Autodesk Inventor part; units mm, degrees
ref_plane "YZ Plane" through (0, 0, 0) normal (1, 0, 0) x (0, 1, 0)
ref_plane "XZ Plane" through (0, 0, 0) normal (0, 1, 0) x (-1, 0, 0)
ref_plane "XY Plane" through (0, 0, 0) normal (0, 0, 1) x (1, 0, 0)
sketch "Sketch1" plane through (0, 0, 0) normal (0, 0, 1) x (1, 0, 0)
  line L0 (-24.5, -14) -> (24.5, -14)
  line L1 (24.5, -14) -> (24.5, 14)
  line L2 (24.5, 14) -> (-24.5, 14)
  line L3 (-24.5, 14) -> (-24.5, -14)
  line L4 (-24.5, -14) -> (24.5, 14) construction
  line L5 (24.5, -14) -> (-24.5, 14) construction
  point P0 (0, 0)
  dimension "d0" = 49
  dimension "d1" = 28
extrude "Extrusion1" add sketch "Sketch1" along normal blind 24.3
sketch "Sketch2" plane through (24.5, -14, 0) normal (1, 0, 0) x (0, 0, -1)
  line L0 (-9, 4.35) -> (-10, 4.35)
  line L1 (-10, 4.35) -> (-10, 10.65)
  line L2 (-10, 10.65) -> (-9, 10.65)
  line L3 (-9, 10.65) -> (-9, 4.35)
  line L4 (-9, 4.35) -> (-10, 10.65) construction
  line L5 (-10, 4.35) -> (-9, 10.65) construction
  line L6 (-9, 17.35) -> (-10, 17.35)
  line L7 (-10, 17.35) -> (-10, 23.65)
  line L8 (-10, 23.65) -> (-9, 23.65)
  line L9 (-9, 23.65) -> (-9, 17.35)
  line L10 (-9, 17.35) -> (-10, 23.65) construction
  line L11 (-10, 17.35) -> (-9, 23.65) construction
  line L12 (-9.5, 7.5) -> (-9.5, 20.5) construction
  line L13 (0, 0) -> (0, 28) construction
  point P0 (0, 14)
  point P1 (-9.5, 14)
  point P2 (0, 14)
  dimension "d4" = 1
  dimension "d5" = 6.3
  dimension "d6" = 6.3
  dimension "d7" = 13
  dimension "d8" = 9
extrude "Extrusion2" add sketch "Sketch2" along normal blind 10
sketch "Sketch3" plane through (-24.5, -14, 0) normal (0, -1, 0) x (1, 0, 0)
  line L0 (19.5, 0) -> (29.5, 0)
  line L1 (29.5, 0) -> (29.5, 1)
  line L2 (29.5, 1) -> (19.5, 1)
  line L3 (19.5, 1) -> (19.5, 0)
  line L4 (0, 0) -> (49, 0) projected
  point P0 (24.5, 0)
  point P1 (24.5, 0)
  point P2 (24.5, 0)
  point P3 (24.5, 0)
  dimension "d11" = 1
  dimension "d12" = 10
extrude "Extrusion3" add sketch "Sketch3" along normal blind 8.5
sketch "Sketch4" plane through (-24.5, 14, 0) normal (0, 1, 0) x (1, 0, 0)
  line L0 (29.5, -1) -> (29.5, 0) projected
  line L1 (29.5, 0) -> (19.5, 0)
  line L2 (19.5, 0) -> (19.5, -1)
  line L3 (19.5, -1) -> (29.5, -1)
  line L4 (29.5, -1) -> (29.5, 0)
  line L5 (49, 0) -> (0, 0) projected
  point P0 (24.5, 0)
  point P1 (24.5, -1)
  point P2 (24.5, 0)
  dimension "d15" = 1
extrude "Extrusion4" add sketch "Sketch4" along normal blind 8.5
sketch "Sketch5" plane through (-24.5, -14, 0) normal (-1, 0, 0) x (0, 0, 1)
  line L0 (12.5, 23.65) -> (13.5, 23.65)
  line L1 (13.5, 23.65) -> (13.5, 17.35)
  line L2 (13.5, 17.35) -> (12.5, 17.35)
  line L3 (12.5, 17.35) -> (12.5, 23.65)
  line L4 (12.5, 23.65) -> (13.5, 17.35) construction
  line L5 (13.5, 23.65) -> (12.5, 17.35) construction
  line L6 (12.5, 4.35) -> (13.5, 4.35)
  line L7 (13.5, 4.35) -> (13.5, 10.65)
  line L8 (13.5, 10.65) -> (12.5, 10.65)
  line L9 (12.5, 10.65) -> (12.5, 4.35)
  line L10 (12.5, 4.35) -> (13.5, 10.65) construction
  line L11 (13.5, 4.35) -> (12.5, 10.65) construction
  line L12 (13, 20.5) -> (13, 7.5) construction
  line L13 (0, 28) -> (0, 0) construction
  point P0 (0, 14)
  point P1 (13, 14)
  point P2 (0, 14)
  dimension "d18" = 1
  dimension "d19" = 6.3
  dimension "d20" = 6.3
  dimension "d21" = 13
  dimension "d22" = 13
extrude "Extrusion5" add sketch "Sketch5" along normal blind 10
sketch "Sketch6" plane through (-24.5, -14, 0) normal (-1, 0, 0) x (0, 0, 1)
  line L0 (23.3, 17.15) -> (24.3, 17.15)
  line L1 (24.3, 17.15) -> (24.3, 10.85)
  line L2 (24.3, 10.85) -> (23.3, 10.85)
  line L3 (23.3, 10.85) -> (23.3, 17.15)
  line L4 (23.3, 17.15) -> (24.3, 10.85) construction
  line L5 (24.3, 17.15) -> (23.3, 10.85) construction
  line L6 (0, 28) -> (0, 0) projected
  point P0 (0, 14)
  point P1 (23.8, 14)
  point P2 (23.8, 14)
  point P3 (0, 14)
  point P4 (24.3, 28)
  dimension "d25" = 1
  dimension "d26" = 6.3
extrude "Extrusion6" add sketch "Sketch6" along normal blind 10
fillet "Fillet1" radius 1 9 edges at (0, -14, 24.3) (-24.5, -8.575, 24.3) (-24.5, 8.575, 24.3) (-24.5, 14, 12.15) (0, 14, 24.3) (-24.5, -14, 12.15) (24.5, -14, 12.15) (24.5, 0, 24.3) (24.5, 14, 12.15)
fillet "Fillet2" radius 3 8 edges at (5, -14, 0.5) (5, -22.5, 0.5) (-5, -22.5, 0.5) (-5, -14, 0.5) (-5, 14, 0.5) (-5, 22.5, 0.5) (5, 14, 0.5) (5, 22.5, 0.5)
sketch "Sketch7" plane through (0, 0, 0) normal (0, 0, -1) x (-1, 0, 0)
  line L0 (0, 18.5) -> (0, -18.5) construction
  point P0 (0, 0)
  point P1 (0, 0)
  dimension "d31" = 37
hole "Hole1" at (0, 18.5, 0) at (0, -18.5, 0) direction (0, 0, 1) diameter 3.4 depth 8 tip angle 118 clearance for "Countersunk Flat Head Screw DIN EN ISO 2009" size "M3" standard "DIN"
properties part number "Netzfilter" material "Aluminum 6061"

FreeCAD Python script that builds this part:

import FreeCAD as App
import Part
import Sketcher

V = App.Vector


def edges_at(feature, points):
    """Names of the edges that pass closest to the given points."""
    edges = feature.Shape.Edges
    near = lambda p: min(range(len(edges)), key=lambda i: edges[i].distToShape(Part.Vertex(*p))[0])
    return sorted({f"Edge{near(p) + 1}" for p in points})


def add_polygon(sketch, points):
    """Adds a closed chain of lines whose ends are joined by coincident constraints."""
    first, n = sketch.GeometryCount, len(points)
    for a, b in zip(points, points[1:] + points[:1]):
        sketch.addGeometry(Part.LineSegment(App.Vector(*a, 0), App.Vector(*b, 0)), False)
    for i in range(n):
        sketch.addConstraint(Sketcher.Constraint("Coincident", first + i, 2, first + (i + 1) % n, 1))

doc = App.newDocument("Part")
body = doc.addObject("PartDesign::Body", "Body")

# Sketch on XY plane
sketch1 = body.newObject("Sketcher::SketchObject", "Sketch")
sketch1.AttachmentSupport = (doc.getObject("XY_Plane"), [""])
sketch1.MapMode = "FlatFace"
add_polygon(sketch1, [(-24.5, 14), (-24.5, -14), (24.5, -14), (24.5, 14)])  # lines 0-3
sketch1.addConstraint(Sketcher.Constraint("Vertical", 0))
sketch1.addConstraint(Sketcher.Constraint("Horizontal", 1))
sketch1.addConstraint(Sketcher.Constraint("Vertical", 2))
sketch1.addConstraint(Sketcher.Constraint("Horizontal", 3))
sketch1.addConstraint(Sketcher.Constraint("Symmetric", 0, 2, 2, 2, -1, 1))
sketch1.addConstraint(Sketcher.Constraint("DistanceX", 1, 1, 1, 2, 49.0))
sketch1.addConstraint(Sketcher.Constraint("DistanceY", 0, 2, 0, 1, 28.0))
pad1 = body.newObject("PartDesign::Pad", "Pad")
pad1.Profile = sketch1
pad1.Length = 24.3

# Sketch on YZ plane
sketch2 = body.newObject("Sketcher::SketchObject", "Sketch001")
sketch2.AttachmentSupport = (doc.getObject("YZ_Plane"), [""])
sketch2.MapMode = "FlatFace"
sketch2.AttachmentOffset = App.Placement(V(0, 0, 24.5), App.Rotation())
add_polygon(sketch2, [(-9.65, 10), (-9.65, 9), (-3.35, 9), (-3.35, 10)])  # lines 0-3
add_polygon(sketch2, [(3.35, 10), (3.35, 9), (9.65, 9), (9.65, 10)])  # lines 4-7
sketch2.addConstraint(Sketcher.Constraint("Vertical", 0))
sketch2.addConstraint(Sketcher.Constraint("Horizontal", 1))
sketch2.addConstraint(Sketcher.Constraint("Vertical", 2))
sketch2.addConstraint(Sketcher.Constraint("Horizontal", 3))
sketch2.addConstraint(Sketcher.Constraint("Vertical", 4))
sketch2.addConstraint(Sketcher.Constraint("Horizontal", 5))
sketch2.addConstraint(Sketcher.Constraint("Vertical", 6))
sketch2.addConstraint(Sketcher.Constraint("Horizontal", 7))
sketch2.addConstraint(Sketcher.Constraint("Symmetric", 1, 2, 4, 2, -2))
sketch2.addConstraint(Sketcher.Constraint("Symmetric", 3, 2, 6, 2, -2))
sketch2.addConstraint(Sketcher.Constraint("DistanceY", 0, 2, 0, 1, 1.0))
sketch2.addConstraint(Sketcher.Constraint("DistanceX", 1, 1, 1, 2, 6.3))
sketch2.addConstraint(Sketcher.Constraint("DistanceY", -1, 1, 0, 2, 9.0))
sketch2.addConstraint(Sketcher.Constraint("DistanceX", 0, 2, 4, 2, 13.0))
pad2 = body.newObject("PartDesign::Pad", "Pad001")
pad2.Profile = sketch2
pad2.Length = 10

# Sketch on XZ plane
sketch3 = body.newObject("Sketcher::SketchObject", "Sketch002")
sketch3.AttachmentSupport = (doc.getObject("XZ_Plane"), [""])
sketch3.MapMode = "FlatFace"
sketch3.AttachmentOffset = App.Placement(V(0, 0, 14), App.Rotation())
add_polygon(sketch3, [(-5, 1), (-5, 0), (5, 0), (5, 1)])  # lines 0-3
sketch3.addConstraint(Sketcher.Constraint("Vertical", 0))
sketch3.addConstraint(Sketcher.Constraint("Horizontal", 1))
sketch3.addConstraint(Sketcher.Constraint("Vertical", 2))
sketch3.addConstraint(Sketcher.Constraint("Horizontal", 3))
sketch3.addConstraint(Sketcher.Constraint("Symmetric", 0, 2, 1, 2, -1, 1))
sketch3.addConstraint(Sketcher.Constraint("DistanceX", 1, 1, 1, 2, 10.0))
sketch3.addConstraint(Sketcher.Constraint("DistanceY", 0, 2, 0, 1, 1.0))
pad3 = body.newObject("PartDesign::Pad", "Pad002")
pad3.Profile = sketch3
pad3.Length = 8.5

# Sketch on XZ plane
sketch4 = body.newObject("Sketcher::SketchObject", "Sketch003")
sketch4.AttachmentSupport = (doc.getObject("XZ_Plane"), [""])
sketch4.MapMode = "FlatFace"
sketch4.AttachmentOffset = App.Placement(V(0, 0, -14), App.Rotation())
add_polygon(sketch4, [(-5, 1), (5, 1), (5, 0), (-5, 0)])  # lines 0-3
sketch4.addConstraint(Sketcher.Constraint("Horizontal", 0))
sketch4.addConstraint(Sketcher.Constraint("Vertical", 1))
sketch4.addConstraint(Sketcher.Constraint("Horizontal", 2))
sketch4.addConstraint(Sketcher.Constraint("Vertical", 3))
sketch4.addConstraint(Sketcher.Constraint("Symmetric", 1, 2, 2, 2, -1, 1))
sketch4.addConstraint(Sketcher.Constraint("DistanceY", 1, 2, 1, 1, 1.0))
sketch4.addConstraint(Sketcher.Constraint("DistanceX", 0, 1, 0, 2, 10.0))
pad4 = body.newObject("PartDesign::Pad", "Pad003")
pad4.Profile = sketch4
pad4.Length = 8.5
pad4.Reversed = True

# Sketch on YZ plane
sketch5 = body.newObject("Sketcher::SketchObject", "Sketch004")
sketch5.AttachmentSupport = (doc.getObject("YZ_Plane"), [""])
sketch5.MapMode = "FlatFace"
sketch5.AttachmentOffset = App.Placement(V(0, 0, -24.5), App.Rotation())
add_polygon(sketch5, [(9.65, 13.5), (9.65, 12.5), (3.35, 12.5), (3.35, 13.5)])  # lines 0-3
add_polygon(sketch5, [(-3.35, 12.5), (-9.65, 12.5), (-9.65, 13.5), (-3.35, 13.5)])  # lines 4-7
sketch5.addConstraint(Sketcher.Constraint("Vertical", 0))
sketch5.addConstraint(Sketcher.Constraint("Horizontal", 1))
sketch5.addConstraint(Sketcher.Constraint("Vertical", 2))
sketch5.addConstraint(Sketcher.Constraint("Horizontal", 3))
sketch5.addConstraint(Sketcher.Constraint("Horizontal", 4))
sketch5.addConstraint(Sketcher.Constraint("Vertical", 5))
sketch5.addConstraint(Sketcher.Constraint("Horizontal", 6))
sketch5.addConstraint(Sketcher.Constraint("Vertical", 7))
sketch5.addConstraint(Sketcher.Constraint("Symmetric", 0, 2, 4, 2, -2))
sketch5.addConstraint(Sketcher.Constraint("Symmetric", 2, 2, 6, 2, -2))
sketch5.addConstraint(Sketcher.Constraint("DistanceY", 0, 2, 0, 1, 1.0))
sketch5.addConstraint(Sketcher.Constraint("DistanceX", 1, 2, 1, 1, 6.3))
sketch5.addConstraint(Sketcher.Constraint("DistanceX", 4, 2, 1, 2, 13.0))
sketch5.addConstraint(Sketcher.Constraint("DistanceY", -1, 1, 0, 2, 12.5))
pad5 = body.newObject("PartDesign::Pad", "Pad004")
pad5.Profile = sketch5
pad5.Length = 10
pad5.Reversed = True

# Sketch on YZ plane
sketch6 = body.newObject("Sketcher::SketchObject", "Sketch005")
sketch6.AttachmentSupport = (doc.getObject("YZ_Plane"), [""])
sketch6.MapMode = "FlatFace"
sketch6.AttachmentOffset = App.Placement(V(0, 0, -24.5), App.Rotation())
add_polygon(sketch6, [(3.15, 24.3), (3.15, 23.3), (-3.15, 23.3), (-3.15, 24.3)])  # lines 0-3
sketch6.addConstraint(Sketcher.Constraint("Vertical", 0))
sketch6.addConstraint(Sketcher.Constraint("Horizontal", 1))
sketch6.addConstraint(Sketcher.Constraint("Vertical", 2))
sketch6.addConstraint(Sketcher.Constraint("Horizontal", 3))
sketch6.addConstraint(Sketcher.Constraint("DistanceY", 0, 2, 0, 1, 1.0))
sketch6.addConstraint(Sketcher.Constraint("DistanceX", 1, 2, 1, 1, 6.3))
sketch6.addConstraint(Sketcher.Constraint("DistanceY", -1, 1, 0, 2, 23.3))
sketch6.addConstraint(Sketcher.Constraint("DistanceX", -1, 1, 0, 2, 3.15))
pad6 = body.newObject("PartDesign::Pad", "Pad005")
pad6.Profile = sketch6
pad6.Length = 10
pad6.Reversed = True
doc.recompute()

fillet = body.newObject("PartDesign::Fillet", "Fillet")
fillet.Base = (pad6, edges_at(pad6, [
    (0, -14, 24.3),
    (-24.5, -8.575, 24.3),
    (-24.5, 8.575, 24.3),
    (-24.5, 14, 12.15),
    (0, 14, 24.3),
    (-24.5, -14, 12.15),
    (24.5, -14, 12.15),
    (24.5, 0, 24.3),
    (24.5, 14, 12.15),
]))
fillet.Radius = 1
doc.recompute()

fillet2 = body.newObject("PartDesign::Fillet", "Fillet001")
fillet2.Base = (fillet, edges_at(fillet, [
    (5, -14, 0.5),
    (5, -22.5, 0.5),
    (-5, -22.5, 0.5),
    (-5, -14, 0.5),
    (-5, 14, 0.5),
    (-5, 22.5, 0.5),
    (5, 14, 0.5),
    (5, 22.5, 0.5),
]))
fillet2.Radius = 3

# Sketch on XY plane
sketch7 = body.newObject("Sketcher::SketchObject", "Sketch006")
sketch7.AttachmentSupport = (doc.getObject("XY_Plane"), [""])
sketch7.MapMode = "FlatFace"
sketch7.addGeometry(Part.Circle(V(0, 18.5, 0), V(0, 0, 1), 1.7), False)
sketch7.addGeometry(Part.Circle(V(0, -18.5, 0), V(0, 0, 1), 1.7), False)
sketch7.addConstraint(Sketcher.Constraint("Equal", 0, 1))
sketch7.addConstraint(Sketcher.Constraint("Symmetric", 0, 3, 1, 3, -1, 1))
sketch7.addConstraint(Sketcher.Constraint("PointOnObject", 0, 3, -2))
sketch7.addConstraint(Sketcher.Constraint("Diameter", 0, 3.4))
sketch7.addConstraint(Sketcher.Constraint("DistanceY", 1, 3, 0, 3, 37.0))
doc.recompute()
hole = body.newObject("PartDesign::Hole", "Hole")
hole.Profile = sketch7
hole.ThreadType = "None"
hole.Diameter = 3.4
hole.DepthType = "Dimension"
hole.Depth = 8
hole.DrillPoint = "Angled"
hole.DrillPointAngle = 118
hole.Reversed = True

doc.recompute()
